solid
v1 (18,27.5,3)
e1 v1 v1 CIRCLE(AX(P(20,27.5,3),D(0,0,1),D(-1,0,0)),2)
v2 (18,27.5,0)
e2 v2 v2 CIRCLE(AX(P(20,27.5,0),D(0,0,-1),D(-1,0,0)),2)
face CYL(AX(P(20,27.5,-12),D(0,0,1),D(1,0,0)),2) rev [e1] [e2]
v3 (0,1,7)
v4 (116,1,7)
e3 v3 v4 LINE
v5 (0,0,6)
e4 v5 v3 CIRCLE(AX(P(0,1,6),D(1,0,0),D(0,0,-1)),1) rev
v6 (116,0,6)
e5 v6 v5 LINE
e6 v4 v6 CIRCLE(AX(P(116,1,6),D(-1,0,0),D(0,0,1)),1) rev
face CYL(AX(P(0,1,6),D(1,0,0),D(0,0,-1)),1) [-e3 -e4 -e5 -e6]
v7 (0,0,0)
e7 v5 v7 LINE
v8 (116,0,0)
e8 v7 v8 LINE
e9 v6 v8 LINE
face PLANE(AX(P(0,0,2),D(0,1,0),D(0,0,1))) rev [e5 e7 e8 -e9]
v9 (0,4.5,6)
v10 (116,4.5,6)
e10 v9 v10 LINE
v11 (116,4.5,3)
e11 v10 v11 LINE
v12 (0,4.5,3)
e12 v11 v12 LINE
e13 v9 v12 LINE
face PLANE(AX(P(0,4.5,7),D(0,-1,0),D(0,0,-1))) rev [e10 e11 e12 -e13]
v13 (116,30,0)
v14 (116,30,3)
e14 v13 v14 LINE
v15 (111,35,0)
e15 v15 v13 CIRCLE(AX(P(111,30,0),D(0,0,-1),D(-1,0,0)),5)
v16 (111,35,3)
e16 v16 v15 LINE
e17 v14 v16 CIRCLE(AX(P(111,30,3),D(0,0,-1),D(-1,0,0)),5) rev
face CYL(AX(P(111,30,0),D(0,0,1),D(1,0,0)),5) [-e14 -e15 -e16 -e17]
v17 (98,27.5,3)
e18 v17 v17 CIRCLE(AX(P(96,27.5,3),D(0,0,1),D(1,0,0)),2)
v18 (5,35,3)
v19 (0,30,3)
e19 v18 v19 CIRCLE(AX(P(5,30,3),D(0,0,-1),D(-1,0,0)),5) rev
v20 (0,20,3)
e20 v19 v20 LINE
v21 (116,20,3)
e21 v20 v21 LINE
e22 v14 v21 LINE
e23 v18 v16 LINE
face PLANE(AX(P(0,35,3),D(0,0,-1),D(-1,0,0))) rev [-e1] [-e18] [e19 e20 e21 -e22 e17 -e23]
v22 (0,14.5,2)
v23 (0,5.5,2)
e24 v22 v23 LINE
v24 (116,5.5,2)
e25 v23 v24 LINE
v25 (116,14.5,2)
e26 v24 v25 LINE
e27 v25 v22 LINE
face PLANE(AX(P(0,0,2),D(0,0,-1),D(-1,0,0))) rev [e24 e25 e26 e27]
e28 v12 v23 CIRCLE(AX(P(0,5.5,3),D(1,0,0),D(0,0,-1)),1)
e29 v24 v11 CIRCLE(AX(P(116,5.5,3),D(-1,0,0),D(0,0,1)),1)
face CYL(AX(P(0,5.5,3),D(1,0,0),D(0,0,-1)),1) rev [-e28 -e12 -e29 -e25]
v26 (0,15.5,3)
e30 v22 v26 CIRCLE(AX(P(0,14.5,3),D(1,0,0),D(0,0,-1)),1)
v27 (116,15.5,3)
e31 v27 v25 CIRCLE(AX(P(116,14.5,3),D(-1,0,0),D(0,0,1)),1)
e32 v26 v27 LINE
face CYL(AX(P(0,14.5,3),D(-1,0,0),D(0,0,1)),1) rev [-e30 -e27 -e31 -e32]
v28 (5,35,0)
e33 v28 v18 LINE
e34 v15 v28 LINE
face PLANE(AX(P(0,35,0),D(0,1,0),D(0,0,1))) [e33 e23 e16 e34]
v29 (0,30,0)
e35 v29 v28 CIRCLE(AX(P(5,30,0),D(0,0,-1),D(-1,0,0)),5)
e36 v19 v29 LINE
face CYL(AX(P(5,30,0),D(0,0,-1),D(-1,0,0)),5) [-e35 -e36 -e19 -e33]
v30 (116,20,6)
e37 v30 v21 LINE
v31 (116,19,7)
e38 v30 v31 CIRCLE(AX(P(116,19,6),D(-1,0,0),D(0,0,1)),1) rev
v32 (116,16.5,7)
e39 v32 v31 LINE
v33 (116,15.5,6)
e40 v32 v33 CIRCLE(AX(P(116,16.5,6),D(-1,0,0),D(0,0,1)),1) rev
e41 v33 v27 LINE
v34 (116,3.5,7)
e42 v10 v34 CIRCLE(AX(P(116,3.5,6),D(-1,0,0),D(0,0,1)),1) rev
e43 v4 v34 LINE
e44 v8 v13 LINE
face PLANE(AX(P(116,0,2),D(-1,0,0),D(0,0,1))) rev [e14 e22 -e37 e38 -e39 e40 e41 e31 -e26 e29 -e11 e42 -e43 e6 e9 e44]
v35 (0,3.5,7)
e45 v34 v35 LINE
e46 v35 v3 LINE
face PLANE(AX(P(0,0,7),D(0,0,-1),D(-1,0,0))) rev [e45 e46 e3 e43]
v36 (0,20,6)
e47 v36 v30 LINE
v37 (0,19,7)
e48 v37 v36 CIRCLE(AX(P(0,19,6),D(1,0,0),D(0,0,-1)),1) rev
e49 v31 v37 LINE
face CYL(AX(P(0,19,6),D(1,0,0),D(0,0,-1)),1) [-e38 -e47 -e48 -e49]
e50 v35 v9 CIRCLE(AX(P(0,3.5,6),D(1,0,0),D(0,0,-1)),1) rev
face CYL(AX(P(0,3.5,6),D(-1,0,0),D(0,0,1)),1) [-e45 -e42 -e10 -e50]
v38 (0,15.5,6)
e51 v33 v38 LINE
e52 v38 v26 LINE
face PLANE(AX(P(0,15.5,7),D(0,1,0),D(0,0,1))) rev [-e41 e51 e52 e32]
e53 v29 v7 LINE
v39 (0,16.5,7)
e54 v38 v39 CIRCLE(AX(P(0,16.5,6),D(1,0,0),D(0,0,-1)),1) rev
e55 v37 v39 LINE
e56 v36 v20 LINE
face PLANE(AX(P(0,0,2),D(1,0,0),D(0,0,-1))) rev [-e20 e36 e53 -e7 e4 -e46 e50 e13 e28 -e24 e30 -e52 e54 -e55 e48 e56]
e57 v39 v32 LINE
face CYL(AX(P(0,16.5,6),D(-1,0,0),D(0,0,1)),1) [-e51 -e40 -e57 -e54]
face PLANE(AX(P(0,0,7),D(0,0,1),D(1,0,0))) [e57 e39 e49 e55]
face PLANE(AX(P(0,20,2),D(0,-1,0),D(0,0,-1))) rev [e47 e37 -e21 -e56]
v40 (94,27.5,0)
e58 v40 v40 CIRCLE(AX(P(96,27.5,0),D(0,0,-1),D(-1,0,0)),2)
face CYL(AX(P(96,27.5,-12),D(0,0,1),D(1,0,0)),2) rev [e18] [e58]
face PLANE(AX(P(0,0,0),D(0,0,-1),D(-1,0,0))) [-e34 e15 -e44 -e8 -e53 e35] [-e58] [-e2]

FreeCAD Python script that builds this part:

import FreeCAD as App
import Part
import Sketcher

V = App.Vector
Q = App.Units.Quantity


def edges_at(feature, points):
    """Names of the edges that pass closest to the given points."""
    edges = feature.Shape.Edges
    near = lambda p: min(range(len(edges)), key=lambda i: edges[i].distToShape(Part.Vertex(*p))[0])
    return sorted({f"Edge{near(p) + 1}" for p in points})

doc = App.newDocument("Part")
params = doc.addObject("Spreadsheet::Sheet", "Params")
for row, (alias, value) in enumerate([
    ("sketch1_width", "116 mm"),
    ("sketch1_height", "20 mm"),
    ("pad1_length", "2 mm"),
    ("sketch2_width", "116 mm"),
    ("sketch2_height", "4.5 mm"),
    ("pad2_length", "5 mm"),
    ("fillet_radius", "1 mm"),
    ("sketch3_width", "116 mm"),
    ("sketch3_height", "3 mm"),
    ("pad3_length", "15 mm"),
    ("fillet2_radius", "5 mm"),
    ("sketch4_diameter", "4 mm"),
    ("pocket1_length", "15 mm"),
], start=1):
    params.set(f"A{row}", alias)
    params.set(f"B{row}", "=" + value)
    params.setAlias(f"B{row}", alias)

body = doc.addObject("PartDesign::Body", "Body")

# Sketch on XY plane
sketch1 = body.newObject("Sketcher::SketchObject", "Sketch")
sketch1.AttachmentSupport = (doc.getObject("XY_Plane"), [""])
sketch1.MapMode = "FlatFace"
sketch1.addGeometry([
    Part.LineSegment(V(0, 20, 0), V(0, 0, 0)),
    Part.LineSegment(V(0, 0, 0), V(116, 0, 0)),
    Part.LineSegment(V(116, 0, 0), V(116, 20, 0)),
    Part.LineSegment(V(116, 20, 0), V(0, 20, 0)),
], False)
sketch1.addConstraint([
    Sketcher.Constraint("Coincident", 0, 2, 1, 1),
    Sketcher.Constraint("Coincident", 1, 2, 2, 1),
    Sketcher.Constraint("Coincident", 2, 2, 3, 1),
    Sketcher.Constraint("Coincident", 3, 2, 0, 1),
    Sketcher.Constraint("Vertical", 0),
    Sketcher.Constraint("Horizontal", 1),
    Sketcher.Constraint("Vertical", 2),
    Sketcher.Constraint("Horizontal", 3),
    Sketcher.Constraint("Coincident", 0, 2, -1, 1),
    Sketcher.Constraint("DistanceX", 1, 1, 1, 2, Q("116 mm")),
    Sketcher.Constraint("DistanceY", 0, 2, 0, 1, Q("20 mm")),
])
sketch1.setExpression("Constraints[9]", "Params.sketch1_width")
sketch1.setExpression("Constraints[10]", "Params.sketch1_height")
pad1 = body.newObject("PartDesign::Pad", "Pad")
pad1.Profile = sketch1
pad1.setExpression("Length", "Params.pad1_length")

# Sketch on XY plane
sketch2 = body.newObject("Sketcher::SketchObject", "Sketch001")
sketch2.AttachmentSupport = (doc.getObject("XY_Plane"), [""])
sketch2.MapMode = "FlatFace"
sketch2.AttachmentOffset = App.Placement(V(0, 0, 2), App.Rotation())
sketch2.addGeometry([
    Part.LineSegment(V(0, 20, 0), V(0, 15.5, 0)),  # 0
    Part.LineSegment(V(0, 15.5, 0), V(116, 15.5, 0)),  # 1
    Part.LineSegment(V(116, 15.5, 0), V(116, 20, 0)),  # 2
    Part.LineSegment(V(116, 20, 0), V(0, 20, 0)),  # 3
    Part.LineSegment(V(0, 4.5, 0), V(0, 0, 0)),  # 4
    Part.LineSegment(V(0, 0, 0), V(116, 0, 0)),  # 5
    Part.LineSegment(V(116, 0, 0), V(116, 4.5, 0)),  # 6
    Part.LineSegment(V(116, 4.5, 0), V(0, 4.5, 0)),  # 7
], False)
sketch2.addConstraint([
    Sketcher.Constraint("Coincident", 0, 2, 1, 1),
    Sketcher.Constraint("Coincident", 1, 2, 2, 1),
    Sketcher.Constraint("Coincident", 2, 2, 3, 1),
    Sketcher.Constraint("Coincident", 3, 2, 0, 1),
    Sketcher.Constraint("Coincident", 4, 2, 5, 1),
    Sketcher.Constraint("Coincident", 5, 2, 6, 1),
    Sketcher.Constraint("Coincident", 6, 2, 7, 1),
    Sketcher.Constraint("Coincident", 7, 2, 4, 1),
    Sketcher.Constraint("Vertical", 0),
    Sketcher.Constraint("Horizontal", 1),
    Sketcher.Constraint("Vertical", 2),
    Sketcher.Constraint("Horizontal", 3),
    Sketcher.Constraint("Vertical", 4),
    Sketcher.Constraint("Horizontal", 5),
    Sketcher.Constraint("Vertical", 6),
    Sketcher.Constraint("Horizontal", 7),
    Sketcher.Constraint("Coincident", 4, 2, -1, 1),
    Sketcher.Constraint("PointOnObject", 0, 2, -2),
    Sketcher.Constraint("Vertical", 2, 2, 5, 2),
    Sketcher.Constraint("Equal", 2, 4),
    Sketcher.Constraint("DistanceX", 1, 1, 1, 2, Q("116 mm")),
    Sketcher.Constraint("DistanceY", 0, 2, 0, 1, Q("4.5 mm")),
    Sketcher.Constraint("DistanceY", -1, 1, 2, 2, Q("20 mm")),
])
sketch2.setExpression("Constraints[20]", "Params.sketch2_width")
sketch2.setExpression("Constraints[21]", "Params.sketch2_height")
pad2 = body.newObject("PartDesign::Pad", "Pad001")
pad2.Profile = sketch2
pad2.setExpression("Length", "Params.pad2_length")
doc.recompute()

fillet = body.newObject("PartDesign::Fillet", "Fillet")
fillet.Base = (pad2, edges_at(pad2, [
    (58, 15.5, 2),
    (58, 15.5, 7),
    (58, 20, 7),
    (58, 4.5, 2),
    (58, 0, 7),
    (58, 4.5, 7),
]))
fillet.setExpression("Radius", "Params.fillet_radius")

# Sketch on XZ plane
sketch3 = body.newObject("Sketcher::SketchObject", "Sketch002")
sketch3.AttachmentSupport = (doc.getObject("XZ_Plane"), [""])
sketch3.MapMode = "FlatFace"
sketch3.AttachmentOffset = App.Placement(V(0, 0, -20), App.Rotation())
sketch3.addGeometry([
    Part.LineSegment(V(0, 0, 0), V(0, 3, 0)),
    Part.LineSegment(V(0, 3, 0), V(116, 3, 0)),
    Part.LineSegment(V(116, 3, 0), V(116, 0, 0)),
    Part.LineSegment(V(116, 0, 0), V(0, 0, 0)),
], False)
sketch3.addConstraint([
    Sketcher.Constraint("Coincident", 0, 2, 1, 1),
    Sketcher.Constraint("Coincident", 1, 2, 2, 1),
    Sketcher.Constraint("Coincident", 2, 2, 3, 1),
    Sketcher.Constraint("Coincident", 3, 2, 0, 1),
    Sketcher.Constraint("Vertical", 0),
    Sketcher.Constraint("Horizontal", 1),
    Sketcher.Constraint("Vertical", 2),
    Sketcher.Constraint("Horizontal", 3),
    Sketcher.Constraint("Coincident", 3, 2, -1, 1),
    Sketcher.Constraint("DistanceX", 1, 1, 1, 2, Q("116 mm")),
    Sketcher.Constraint("DistanceY", 0, 1, 0, 2, Q("3 mm")),
])
sketch3.setExpression("Constraints[9]", "Params.sketch3_width")
sketch3.setExpression("Constraints[10]", "Params.sketch3_height")
pad3 = body.newObject("PartDesign::Pad", "Pad002")
pad3.Profile = sketch3
pad3.setExpression("Length", "Params.pad3_length")
pad3.Reversed = True
doc.recompute()

fillet2 = body.newObject("PartDesign::Fillet", "Fillet001")
fillet2.Base = (pad3, edges_at(pad3, [(0, 35, 1.5), (116, 35, 1.5)]))
fillet2.setExpression("Radius", "Params.fillet2_radius")

# Sketch on XY plane
sketch4 = body.newObject("Sketcher::SketchObject", "Sketch003")
sketch4.AttachmentSupport = (doc.getObject("XY_Plane"), [""])
sketch4.MapMode = "FlatFace"
sketch4.AttachmentOffset = App.Placement(V(0, 0, 3), App.Rotation())
sketch4.addGeometry([
    Part.Circle(V(96, 27.5, 0), V(0, 0, 1), 2),
    Part.Circle(V(20, 27.5, 0), V(0, 0, 1), 2),
], False)
sketch4.addConstraint([
    Sketcher.Constraint("Equal", 0, 1),
    Sketcher.Constraint("Horizontal", 0, 3, 1, 3),
    Sketcher.Constraint("Diameter", 0, Q("4 mm")),
    Sketcher.Constraint("DistanceX", -1, 1, 0, 3, Q("96 mm")),
    Sketcher.Constraint("DistanceX", -1, 1, 1, 3, Q("20 mm")),
    Sketcher.Constraint("DistanceY", -1, 1, 0, 3, Q("27.5 mm")),
])
sketch4.setExpression("Constraints[2]", "Params.sketch4_diameter")
pocket1 = body.newObject("PartDesign::Pocket", "Pocket")
pocket1.Profile = sketch4
pocket1.setExpression("Length", "Params.pocket1_length")

doc.recompute()
